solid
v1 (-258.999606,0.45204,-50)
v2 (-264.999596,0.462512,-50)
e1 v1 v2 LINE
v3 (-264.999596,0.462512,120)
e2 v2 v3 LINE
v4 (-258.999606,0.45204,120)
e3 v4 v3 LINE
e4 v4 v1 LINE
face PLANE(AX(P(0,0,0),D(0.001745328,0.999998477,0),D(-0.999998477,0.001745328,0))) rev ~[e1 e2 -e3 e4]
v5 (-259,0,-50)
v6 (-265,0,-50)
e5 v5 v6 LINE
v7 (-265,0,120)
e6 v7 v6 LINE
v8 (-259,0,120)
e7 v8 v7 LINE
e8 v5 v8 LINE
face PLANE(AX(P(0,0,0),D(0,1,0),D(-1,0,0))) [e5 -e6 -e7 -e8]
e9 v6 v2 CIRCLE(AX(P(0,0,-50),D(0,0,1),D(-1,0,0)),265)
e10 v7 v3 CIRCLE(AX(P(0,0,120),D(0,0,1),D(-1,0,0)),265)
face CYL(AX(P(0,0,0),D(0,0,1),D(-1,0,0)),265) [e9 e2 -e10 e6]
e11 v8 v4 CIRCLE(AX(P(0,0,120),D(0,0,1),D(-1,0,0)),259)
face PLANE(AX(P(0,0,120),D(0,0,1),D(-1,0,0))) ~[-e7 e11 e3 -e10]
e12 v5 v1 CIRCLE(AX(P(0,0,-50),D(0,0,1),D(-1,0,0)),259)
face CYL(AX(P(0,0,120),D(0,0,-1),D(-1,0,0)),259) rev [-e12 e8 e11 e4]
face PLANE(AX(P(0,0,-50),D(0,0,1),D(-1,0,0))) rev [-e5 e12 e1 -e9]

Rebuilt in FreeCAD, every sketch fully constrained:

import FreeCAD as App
import Part
import Sketcher
from FreeCAD import Vector
Q = App.Units.Quantity


def add_polygon(sketch, points):
    """Adds a closed chain of lines whose ends are joined by coincident constraints."""
    first, n = sketch.GeometryCount, len(points)
    for a, b in zip(points, points[1:] + points[:1]):
        sketch.addGeometry(Part.LineSegment(App.Vector(*a, 0), App.Vector(*b, 0)), False)
    for i in range(n):
        sketch.addConstraint(Sketcher.Constraint("Coincident", first + i, 2, first + (i + 1) % n, 1))

doc = App.newDocument("Part")
body = doc.addObject("PartDesign::Body", "Body")

sketch1 = body.newObject("Sketcher::SketchObject", "Sketch")
sketch1.AttachmentSupport = (doc.getObject("XZ_Plane"), [""])
sketch1.MapMode = "FlatFace"
add_polygon(sketch1, [(-265, 120), (-259, 120), (-259, -50), (-265, -50)])
sketch1.addConstraint(Sketcher.Constraint("Horizontal", 0))
sketch1.addConstraint(Sketcher.Constraint("Vertical", 1))
sketch1.addConstraint(Sketcher.Constraint("Horizontal", 2))
sketch1.addConstraint(Sketcher.Constraint("Vertical", 3))
sketch1.addConstraint(Sketcher.Constraint("DistanceX", 0, 1, 0, 2, Q("6 mm")))
sketch1.addConstraint(Sketcher.Constraint("DistanceY", -1, 1, 0, 2, Q("120 mm")))
sketch1.addConstraint(Sketcher.Constraint("DistanceY", 1, 2, -1, 1, Q("50 mm")))
sketch1.addConstraint(Sketcher.Constraint("DistanceX", 0, 2, -1, 1, Q("259 mm")))
revolution = body.newObject("PartDesign::Revolution", "Revolution")
revolution.Profile = sketch1
revolution.ReferenceAxis = (sketch1, ["V_Axis"])
revolution.Angle = 359.9

doc.recompute()
